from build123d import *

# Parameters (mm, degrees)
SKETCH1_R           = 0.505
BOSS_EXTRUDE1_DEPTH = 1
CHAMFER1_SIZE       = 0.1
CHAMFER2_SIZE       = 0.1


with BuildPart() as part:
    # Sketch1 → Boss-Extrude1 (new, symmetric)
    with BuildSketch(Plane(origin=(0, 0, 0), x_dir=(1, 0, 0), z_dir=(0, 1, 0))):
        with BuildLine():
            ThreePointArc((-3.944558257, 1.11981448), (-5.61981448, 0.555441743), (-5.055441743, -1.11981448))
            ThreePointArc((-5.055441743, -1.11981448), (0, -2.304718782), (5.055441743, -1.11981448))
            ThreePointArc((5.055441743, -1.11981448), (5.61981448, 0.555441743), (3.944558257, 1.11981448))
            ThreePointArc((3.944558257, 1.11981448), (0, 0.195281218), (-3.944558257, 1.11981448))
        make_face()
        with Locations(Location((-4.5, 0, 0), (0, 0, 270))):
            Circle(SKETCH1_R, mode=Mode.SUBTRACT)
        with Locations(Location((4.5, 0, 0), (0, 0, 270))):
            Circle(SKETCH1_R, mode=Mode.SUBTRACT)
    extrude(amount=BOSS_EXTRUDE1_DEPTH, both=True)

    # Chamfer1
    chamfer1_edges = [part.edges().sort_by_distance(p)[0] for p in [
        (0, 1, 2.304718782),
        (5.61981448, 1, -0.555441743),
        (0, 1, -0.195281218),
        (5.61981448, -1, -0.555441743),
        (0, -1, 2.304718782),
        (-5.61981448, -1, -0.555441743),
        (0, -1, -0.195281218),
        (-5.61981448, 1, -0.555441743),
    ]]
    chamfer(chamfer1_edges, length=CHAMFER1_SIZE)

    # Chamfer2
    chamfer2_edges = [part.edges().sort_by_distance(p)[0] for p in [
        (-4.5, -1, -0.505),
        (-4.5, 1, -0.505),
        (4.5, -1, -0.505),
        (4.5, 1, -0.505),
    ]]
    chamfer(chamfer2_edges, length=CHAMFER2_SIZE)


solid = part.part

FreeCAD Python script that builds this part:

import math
import FreeCAD as App
import Part
import Sketcher

V = App.Vector
Q = App.Units.Quantity


def edges_at(feature, points):
    """Names of the edges that pass closest to the given points."""
    edges = feature.Shape.Edges
    near = lambda p: min(range(len(edges)), key=lambda i: edges[i].distToShape(Part.Vertex(*p))[0])
    return sorted({f"Edge{near(p) + 1}" for p in points})

doc = App.newDocument("Part")
body = doc.addObject("PartDesign::Body", "Body")

# Sketch on XZ plane
sketch1 = doc.addObject("Sketcher::SketchObject", "Sketch")
body.addObject(sketch1)
sketch1.AttachmentSupport = (doc.XZ_Plane, [""])
sketch1.MapMode = "FlatFace"
sketch1.addGeometry(Part.ArcOfCircle(Part.Circle(V(-4.5, 0, 0), V(0, 0, 1), 1.2), math.radians(116), math.radians(296)), False)
sketch1.addGeometry(Part.ArcOfCircle(Part.Circle(V(0, -9.1, 0), V(0, 0, 1), 11.4), math.radians(64), math.radians(116)), False)
sketch1.addGeometry(Part.ArcOfCircle(Part.Circle(V(4.5, 0, 0), V(0, 0, 1), 1.2), math.radians(-116), math.radians(64)), False)
sketch1.addGeometry(Part.ArcOfCircle(Part.Circle(V(0, -9.1, 0), V(0, 0, 1), 8.9), math.radians(64), math.radians(116)), False)
sketch1.addGeometry(Part.Circle(V(-4.5, 0, 0), V(0, 0, 1), 0.5), False)
sketch1.addGeometry(Part.Circle(V(4.5, 0, 0), V(0, 0, 1), 0.5), False)
sketch1.addConstraint(Sketcher.Constraint("Tangent", 0, 1, 1, 2))
sketch1.addConstraint(Sketcher.Constraint("Tangent", 1, 1, 2, 2))
sketch1.addConstraint(Sketcher.Constraint("Tangent", 2, 1, 3, 1))
sketch1.addConstraint(Sketcher.Constraint("Tangent", 3, 2, 0, 2))
sketch1.addConstraint(Sketcher.Constraint("Coincident", 3, 3, 1, 3))
sketch1.addConstraint(Sketcher.Constraint("Coincident", 4, 3, 0, 3))
sketch1.addConstraint(Sketcher.Constraint("Coincident", 5, 3, 2, 3))
sketch1.addConstraint(Sketcher.Constraint("Equal", 4, 5))
sketch1.addConstraint(Sketcher.Constraint("Symmetric", 0, 3, 2, 3, -1, 1))
sketch1.addConstraint(Sketcher.Constraint("PointOnObject", 0, 3, -1))
sketch1.addConstraint(Sketcher.Constraint("Diameter", 4, Q("1.01 mm")))
sketch1.addConstraint(Sketcher.Constraint("Radius", 0, Q("1.25 mm")))
sketch1.addConstraint(Sketcher.Constraint("DistanceX", 0, 3, 2, 3, Q("9 mm")))
sketch1.addConstraint(Sketcher.Constraint("Radius", 1, Q("11.377075 mm")))
pad1 = doc.addObject("PartDesign::Pad", "Pad")
body.addObject(pad1)
pad1.Profile = sketch1
pad1.Length = 2
pad1.Midplane = True
doc.recompute()

chamfer = doc.addObject("PartDesign::Chamfer", "Chamfer")
body.addObject(chamfer)
chamfer.Base = (pad1, edges_at(pad1, [
    (0, 1, 2.305),
    (5.62, 1, -0.555),
    (0, 1, -0.195),
    (5.62, -1, -0.555),
    (0, -1, 2.305),
    (-5.62, -1, -0.555),
    (0, -1, -0.195),
    (-5.62, 1, -0.555),
]))
chamfer.Size = 0.1
doc.recompute()

chamfer2 = doc.addObject("PartDesign::Chamfer", "Chamfer001")
body.addObject(chamfer2)
chamfer2.Base = (chamfer, edges_at(chamfer, [
    (-4.5, -1, -0.505),
    (-4.5, 1, -0.505),
    (4.5, -1, -0.505),
    (4.5, 1, -0.505),
]))
chamfer2.Size = 0.1

doc.recompute()
